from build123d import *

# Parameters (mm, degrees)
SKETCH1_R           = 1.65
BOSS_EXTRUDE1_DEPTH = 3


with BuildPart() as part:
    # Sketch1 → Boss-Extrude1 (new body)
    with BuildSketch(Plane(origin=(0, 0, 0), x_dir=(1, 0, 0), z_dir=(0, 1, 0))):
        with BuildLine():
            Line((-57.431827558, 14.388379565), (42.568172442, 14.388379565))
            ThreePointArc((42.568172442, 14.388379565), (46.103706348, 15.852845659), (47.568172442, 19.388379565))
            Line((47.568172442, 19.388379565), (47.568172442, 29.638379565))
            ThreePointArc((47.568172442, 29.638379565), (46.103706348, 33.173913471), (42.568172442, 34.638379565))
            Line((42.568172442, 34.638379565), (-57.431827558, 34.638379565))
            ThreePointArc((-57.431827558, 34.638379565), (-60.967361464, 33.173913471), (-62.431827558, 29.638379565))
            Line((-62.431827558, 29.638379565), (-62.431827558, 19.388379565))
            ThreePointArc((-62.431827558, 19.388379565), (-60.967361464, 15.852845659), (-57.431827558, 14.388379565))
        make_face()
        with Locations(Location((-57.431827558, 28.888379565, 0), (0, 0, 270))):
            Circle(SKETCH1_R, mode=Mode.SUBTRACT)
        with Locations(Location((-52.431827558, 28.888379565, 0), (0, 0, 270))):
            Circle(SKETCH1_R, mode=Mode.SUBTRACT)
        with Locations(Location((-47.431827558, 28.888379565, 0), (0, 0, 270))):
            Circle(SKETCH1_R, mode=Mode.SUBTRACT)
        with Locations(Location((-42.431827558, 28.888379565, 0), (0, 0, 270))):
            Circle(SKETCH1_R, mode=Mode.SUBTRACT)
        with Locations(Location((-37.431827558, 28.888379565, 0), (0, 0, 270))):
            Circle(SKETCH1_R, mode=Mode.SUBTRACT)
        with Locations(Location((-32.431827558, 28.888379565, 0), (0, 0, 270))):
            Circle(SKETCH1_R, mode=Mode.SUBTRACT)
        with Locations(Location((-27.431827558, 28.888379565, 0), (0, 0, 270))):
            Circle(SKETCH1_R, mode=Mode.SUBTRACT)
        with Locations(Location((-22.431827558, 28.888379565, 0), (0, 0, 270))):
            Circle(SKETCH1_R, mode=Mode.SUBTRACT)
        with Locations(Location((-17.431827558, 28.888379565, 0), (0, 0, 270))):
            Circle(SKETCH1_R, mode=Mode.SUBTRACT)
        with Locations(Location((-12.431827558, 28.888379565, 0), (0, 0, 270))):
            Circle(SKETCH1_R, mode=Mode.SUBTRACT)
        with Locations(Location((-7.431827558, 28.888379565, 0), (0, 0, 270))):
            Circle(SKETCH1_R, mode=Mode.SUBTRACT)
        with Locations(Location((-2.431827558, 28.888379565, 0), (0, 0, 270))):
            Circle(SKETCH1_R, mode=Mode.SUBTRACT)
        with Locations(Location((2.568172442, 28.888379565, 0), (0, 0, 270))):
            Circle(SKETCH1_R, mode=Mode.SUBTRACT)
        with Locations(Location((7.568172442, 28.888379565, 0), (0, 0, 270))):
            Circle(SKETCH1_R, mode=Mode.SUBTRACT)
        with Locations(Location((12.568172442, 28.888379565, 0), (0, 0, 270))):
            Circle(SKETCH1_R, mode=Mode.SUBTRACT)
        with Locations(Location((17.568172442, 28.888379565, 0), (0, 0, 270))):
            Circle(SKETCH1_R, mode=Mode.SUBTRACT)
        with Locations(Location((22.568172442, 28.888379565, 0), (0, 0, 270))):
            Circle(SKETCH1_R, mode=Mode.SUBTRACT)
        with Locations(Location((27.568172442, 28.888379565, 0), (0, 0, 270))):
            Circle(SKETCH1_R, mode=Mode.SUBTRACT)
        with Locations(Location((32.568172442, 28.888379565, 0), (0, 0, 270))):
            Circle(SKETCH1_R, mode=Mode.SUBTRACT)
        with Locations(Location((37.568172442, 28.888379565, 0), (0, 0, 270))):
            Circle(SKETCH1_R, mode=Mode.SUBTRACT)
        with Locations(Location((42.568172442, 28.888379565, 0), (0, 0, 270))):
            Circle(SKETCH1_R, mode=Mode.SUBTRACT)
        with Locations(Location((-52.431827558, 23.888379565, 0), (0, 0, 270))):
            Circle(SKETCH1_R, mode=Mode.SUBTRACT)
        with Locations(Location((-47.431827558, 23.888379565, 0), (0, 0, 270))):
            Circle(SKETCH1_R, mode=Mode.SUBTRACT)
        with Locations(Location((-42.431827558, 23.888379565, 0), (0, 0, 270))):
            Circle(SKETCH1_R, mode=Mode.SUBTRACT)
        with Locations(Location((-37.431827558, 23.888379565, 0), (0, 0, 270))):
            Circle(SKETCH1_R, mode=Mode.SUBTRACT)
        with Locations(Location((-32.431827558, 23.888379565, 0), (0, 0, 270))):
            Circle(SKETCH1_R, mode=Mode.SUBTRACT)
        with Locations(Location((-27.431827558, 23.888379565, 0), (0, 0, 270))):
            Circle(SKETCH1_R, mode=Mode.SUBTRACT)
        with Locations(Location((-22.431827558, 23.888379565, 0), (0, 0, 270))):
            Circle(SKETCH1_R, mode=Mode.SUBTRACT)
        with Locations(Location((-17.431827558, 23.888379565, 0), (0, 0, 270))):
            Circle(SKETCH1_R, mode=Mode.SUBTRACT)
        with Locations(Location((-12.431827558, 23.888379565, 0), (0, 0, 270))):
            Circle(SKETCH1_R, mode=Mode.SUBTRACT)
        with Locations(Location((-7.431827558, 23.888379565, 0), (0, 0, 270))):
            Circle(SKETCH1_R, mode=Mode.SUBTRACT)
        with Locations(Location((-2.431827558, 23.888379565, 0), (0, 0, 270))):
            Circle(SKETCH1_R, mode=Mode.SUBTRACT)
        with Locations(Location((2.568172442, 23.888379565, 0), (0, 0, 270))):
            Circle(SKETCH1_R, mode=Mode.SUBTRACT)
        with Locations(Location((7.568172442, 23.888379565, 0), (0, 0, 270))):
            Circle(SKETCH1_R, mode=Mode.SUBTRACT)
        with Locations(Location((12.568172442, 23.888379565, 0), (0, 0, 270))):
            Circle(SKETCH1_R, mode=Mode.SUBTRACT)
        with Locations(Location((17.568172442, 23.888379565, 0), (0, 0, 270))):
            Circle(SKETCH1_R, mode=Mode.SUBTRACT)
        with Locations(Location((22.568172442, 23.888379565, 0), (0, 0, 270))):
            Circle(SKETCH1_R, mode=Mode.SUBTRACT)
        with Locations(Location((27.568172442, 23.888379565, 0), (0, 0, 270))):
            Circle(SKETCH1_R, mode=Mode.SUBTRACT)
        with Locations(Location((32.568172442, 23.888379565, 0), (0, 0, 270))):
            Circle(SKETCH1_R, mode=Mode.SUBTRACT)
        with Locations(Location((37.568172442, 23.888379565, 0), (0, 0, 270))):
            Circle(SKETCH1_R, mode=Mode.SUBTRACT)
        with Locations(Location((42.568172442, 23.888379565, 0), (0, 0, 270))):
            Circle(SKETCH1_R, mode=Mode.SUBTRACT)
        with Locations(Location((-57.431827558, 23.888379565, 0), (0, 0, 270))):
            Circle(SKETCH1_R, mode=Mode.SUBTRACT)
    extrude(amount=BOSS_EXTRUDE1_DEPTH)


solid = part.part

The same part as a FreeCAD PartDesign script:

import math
import FreeCAD as App
import Part
import Sketcher

V = App.Vector
Q = App.Units.Quantity

doc = App.newDocument("Part")
body = doc.addObject("PartDesign::Body", "Body")

# Sketch on XZ plane
sketch1 = body.newObject("Sketcher::SketchObject", "Sketch")
sketch1.AttachmentSupport = (doc.getObject("XZ_Plane"), [""])
sketch1.MapMode = "FlatFace"
sketch1.addGeometry([
    Part.LineSegment(V(-57.4, -14.4, 0), V(42.6, -14.4, 0)),  # 0
    Part.ArcOfCircle(Part.Circle(V(42.6, -19.4, 0), V(0, 0, 1), 5), math.radians(0), math.radians(90)),  # 1
    Part.LineSegment(V(47.6, -19.4, 0), V(47.6, -29.6, 0)),  # 2
    Part.ArcOfCircle(Part.Circle(V(42.6, -29.6, 0), V(0, 0, 1), 5), math.radians(-90), math.radians(0)),  # 3
    Part.LineSegment(V(42.6, -34.6, 0), V(-57.4, -34.6, 0)),  # 4
    Part.ArcOfCircle(Part.Circle(V(-57.4, -29.6, 0), V(0, 0, 1), 5), math.radians(180), math.radians(270)),  # 5
    Part.LineSegment(V(-62.4, -29.6, 0), V(-62.4, -19.4, 0)),  # 6
    Part.ArcOfCircle(Part.Circle(V(-57.4, -19.4, 0), V(0, 0, 1), 5), math.radians(90), math.radians(180)),  # 7
    Part.Circle(V(-57.4, -23.9, 0), V(0, 0, 1), 1.6),  # 8
    Part.Circle(V(-52.4, -23.9, 0), V(0, 0, 1), 1.6),  # 9
    Part.Circle(V(-47.4, -23.9, 0), V(0, 0, 1), 1.6),  # 10
    Part.Circle(V(-42.4, -23.9, 0), V(0, 0, 1), 1.6),  # 11
    Part.Circle(V(-37.4, -23.9, 0), V(0, 0, 1), 1.6),  # 12
    Part.Circle(V(-32.4, -23.9, 0), V(0, 0, 1), 1.6),  # 13
    Part.Circle(V(-27.4, -23.9, 0), V(0, 0, 1), 1.6),  # 14
    Part.Circle(V(-22.4, -23.9, 0), V(0, 0, 1), 1.6),  # 15
    Part.Circle(V(-17.4, -23.9, 0), V(0, 0, 1), 1.6),  # 16
    Part.Circle(V(-12.4, -23.9, 0), V(0, 0, 1), 1.6),  # 17
    Part.Circle(V(-7.4, -23.9, 0), V(0, 0, 1), 1.6),  # 18
    Part.Circle(V(-2.4, -23.9, 0), V(0, 0, 1), 1.6),  # 19
    Part.Circle(V(2.6, -23.9, 0), V(0, 0, 1), 1.6),  # 20
    Part.Circle(V(7.6, -23.9, 0), V(0, 0, 1), 1.6),  # 21
    Part.Circle(V(12.6, -23.9, 0), V(0, 0, 1), 1.6),  # 22
    Part.Circle(V(17.6, -23.9, 0), V(0, 0, 1), 1.6),  # 23
    Part.Circle(V(22.6, -23.9, 0), V(0, 0, 1), 1.6),  # 24
    Part.Circle(V(27.6, -23.9, 0), V(0, 0, 1), 1.6),  # 25
    Part.Circle(V(32.6, -23.9, 0), V(0, 0, 1), 1.6),  # 26
    Part.Circle(V(37.6, -23.9, 0), V(0, 0, 1), 1.6),  # 27
    Part.Circle(V(42.6, -23.9, 0), V(0, 0, 1), 1.6),  # 28
    Part.Circle(V(-57.4, -28.9, 0), V(0, 0, 1), 1.6),  # 29
    Part.Circle(V(-52.4, -28.9, 0), V(0, 0, 1), 1.6),  # 30
    Part.Circle(V(-47.4, -28.9, 0), V(0, 0, 1), 1.6),  # 31
    Part.Circle(V(-42.4, -28.9, 0), V(0, 0, 1), 1.6),  # 32
    Part.Circle(V(-37.4, -28.9, 0), V(0, 0, 1), 1.6),  # 33
    Part.Circle(V(-32.4, -28.9, 0), V(0, 0, 1), 1.6),  # 34
    Part.Circle(V(-27.4, -28.9, 0), V(0, 0, 1), 1.6),  # 35
    Part.Circle(V(-22.4, -28.9, 0), V(0, 0, 1), 1.6),  # 36
    Part.Circle(V(-17.4, -28.9, 0), V(0, 0, 1), 1.6),  # 37
    Part.Circle(V(-12.4, -28.9, 0), V(0, 0, 1), 1.6),  # 38
    Part.Circle(V(-7.4, -28.9, 0), V(0, 0, 1), 1.6),  # 39
    Part.Circle(V(-2.4, -28.9, 0), V(0, 0, 1), 1.6),  # 40
    Part.Circle(V(2.6, -28.9, 0), V(0, 0, 1), 1.6),  # 41
    Part.Circle(V(7.6, -28.9, 0), V(0, 0, 1), 1.6),  # 42
    Part.Circle(V(12.6, -28.9, 0), V(0, 0, 1), 1.6),  # 43
    Part.Circle(V(17.6, -28.9, 0), V(0, 0, 1), 1.6),  # 44
    Part.Circle(V(22.6, -28.9, 0), V(0, 0, 1), 1.6),  # 45
    Part.Circle(V(27.6, -28.9, 0), V(0, 0, 1), 1.6),  # 46
    Part.Circle(V(32.6, -28.9, 0), V(0, 0, 1), 1.6),  # 47
    Part.Circle(V(37.6, -28.9, 0), V(0, 0, 1), 1.6),  # 48
    Part.Circle(V(42.6, -28.9, 0), V(0, 0, 1), 1.6),  # 49
], False)
sketch1.addConstraint([
    Sketcher.Constraint("Tangent", 0, 2, 1, 2),
    Sketcher.Constraint("Tangent", 1, 1, 2, 1),
    Sketcher.Constraint("Tangent", 2, 2, 3, 2),
    Sketcher.Constraint("Tangent", 3, 1, 4, 1),
    Sketcher.Constraint("Tangent", 4, 2, 5, 2),
    Sketcher.Constraint("Tangent", 5, 1, 6, 1),
    Sketcher.Constraint("Tangent", 6, 2, 7, 2),
    Sketcher.Constraint("Tangent", 7, 1, 0, 1),
    Sketcher.Constraint("Horizontal", 0),
    Sketcher.Constraint("Vertical", 2),
    Sketcher.Constraint("Horizontal", 4),
    Sketcher.Constraint("Vertical", 6),
    Sketcher.Constraint("Equal", 1, 3),
    Sketcher.Constraint("Equal", 3, 5),
    Sketcher.Constraint("Equal", 5, 7),
    Sketcher.Constraint("Equal", 8, 9),
    Sketcher.Constraint("Equal", 9, 10),
    Sketcher.Constraint("Equal", 10, 11),
    Sketcher.Constraint("Equal", 11, 12),
    Sketcher.Constraint("Equal", 12, 13),
    Sketcher.Constraint("Equal", 13, 14),
    Sketcher.Constraint("Equal", 14, 15),
    Sketcher.Constraint("Equal", 15, 16),
    Sketcher.Constraint("Equal", 16, 17),
    Sketcher.Constraint("Equal", 17, 18),
    Sketcher.Constraint("Equal", 18, 19),
    Sketcher.Constraint("Equal", 19, 20),
    Sketcher.Constraint("Equal", 20, 21),
    Sketcher.Constraint("Equal", 21, 22),
    Sketcher.Constraint("Equal", 22, 23),
    Sketcher.Constraint("Equal", 23, 24),
    Sketcher.Constraint("Equal", 24, 25),
    Sketcher.Constraint("Equal", 25, 26),
    Sketcher.Constraint("Equal", 26, 27),
    Sketcher.Constraint("Equal", 27, 28),
    Sketcher.Constraint("Equal", 28, 29),
    Sketcher.Constraint("Equal", 29, 30),
    Sketcher.Constraint("Equal", 30, 31),
    Sketcher.Constraint("Equal", 31, 32),
    Sketcher.Constraint("Equal", 32, 33),
    Sketcher.Constraint("Equal", 33, 34),
    Sketcher.Constraint("Equal", 34, 35),
    Sketcher.Constraint("Equal", 35, 36),
    Sketcher.Constraint("Equal", 36, 37),
    Sketcher.Constraint("Equal", 37, 38),
    Sketcher.Constraint("Equal", 38, 39),
    Sketcher.Constraint("Equal", 39, 40),
    Sketcher.Constraint("Equal", 40, 41),
    Sketcher.Constraint("Equal", 41, 42),
    Sketcher.Constraint("Equal", 42, 43),
    Sketcher.Constraint("Equal", 43, 44),
    Sketcher.Constraint("Equal", 44, 45),
    Sketcher.Constraint("Equal", 45, 46),
    Sketcher.Constraint("Equal", 46, 47),
    Sketcher.Constraint("Equal", 47, 48),
    Sketcher.Constraint("Equal", 48, 49),
    Sketcher.Constraint("Horizontal", 8, 3, 9, 3),
    Sketcher.Constraint("Horizontal", 9, 3, 10, 3),
    Sketcher.Constraint("Horizontal", 10, 3, 11, 3),
    Sketcher.Constraint("Horizontal", 11, 3, 12, 3),
    Sketcher.Constraint("Horizontal", 12, 3, 13, 3),
    Sketcher.Constraint("Horizontal", 13, 3, 14, 3),
    Sketcher.Constraint("Horizontal", 14, 3, 15, 3),
    Sketcher.Constraint("Horizontal", 15, 3, 16, 3),
    Sketcher.Constraint("Horizontal", 16, 3, 17, 3),
    Sketcher.Constraint("Horizontal", 17, 3, 18, 3),
    Sketcher.Constraint("Horizontal", 18, 3, 19, 3),
    Sketcher.Constraint("Horizontal", 19, 3, 20, 3),
    Sketcher.Constraint("Horizontal", 20, 3, 21, 3),
    Sketcher.Constraint("Horizontal", 21, 3, 22, 3),
    Sketcher.Constraint("Horizontal", 22, 3, 23, 3),
    Sketcher.Constraint("Horizontal", 23, 3, 24, 3),
    Sketcher.Constraint("Horizontal", 24, 3, 25, 3),
    Sketcher.Constraint("Horizontal", 25, 3, 26, 3),
    Sketcher.Constraint("Horizontal", 26, 3, 27, 3),
    Sketcher.Constraint("Horizontal", 27, 3, 28, 3),
    Sketcher.Constraint("Horizontal", 29, 3, 30, 3),
    Sketcher.Constraint("Horizontal", 30, 3, 31, 3),
    Sketcher.Constraint("Horizontal", 31, 3, 32, 3),
    Sketcher.Constraint("Horizontal", 32, 3, 33, 3),
    Sketcher.Constraint("Horizontal", 33, 3, 34, 3),
    Sketcher.Constraint("Horizontal", 34, 3, 35, 3),
    Sketcher.Constraint("Horizontal", 35, 3, 36, 3),
    Sketcher.Constraint("Horizontal", 36, 3, 37, 3),
    Sketcher.Constraint("Horizontal", 37, 3, 38, 3),
    Sketcher.Constraint("Horizontal", 38, 3, 39, 3),
    Sketcher.Constraint("Horizontal", 39, 3, 40, 3),
    Sketcher.Constraint("Horizontal", 40, 3, 41, 3),
    Sketcher.Constraint("Horizontal", 41, 3, 42, 3),
    Sketcher.Constraint("Horizontal", 42, 3, 43, 3),
    Sketcher.Constraint("Horizontal", 43, 3, 44, 3),
    Sketcher.Constraint("Horizontal", 44, 3, 45, 3),
    Sketcher.Constraint("Horizontal", 45, 3, 46, 3),
    Sketcher.Constraint("Horizontal", 46, 3, 47, 3),
    Sketcher.Constraint("Horizontal", 47, 3, 48, 3),
    Sketcher.Constraint("Horizontal", 48, 3, 49, 3),
    Sketcher.Constraint("Vertical", 7, 3, 8, 3),
    Sketcher.Constraint("Vertical", 3, 3, 28, 3),
    Sketcher.Constraint("Vertical", 8, 3, 29, 3),
    Sketcher.Constraint("Vertical", 9, 3, 30, 3),
    Sketcher.Constraint("Vertical", 10, 3, 31, 3),
    Sketcher.Constraint("Vertical", 11, 3, 32, 3),
    Sketcher.Constraint("Vertical", 12, 3, 33, 3),
    Sketcher.Constraint("Vertical", 13, 3, 34, 3),
    Sketcher.Constraint("Vertical", 14, 3, 35, 3),
    Sketcher.Constraint("Vertical", 15, 3, 36, 3),
    Sketcher.Constraint("Vertical", 16, 3, 37, 3),
    Sketcher.Constraint("Vertical", 17, 3, 38, 3),
    Sketcher.Constraint("Vertical", 18, 3, 39, 3),
    Sketcher.Constraint("Vertical", 19, 3, 40, 3),
    Sketcher.Constraint("Vertical", 20, 3, 41, 3),
    Sketcher.Constraint("Vertical", 21, 3, 42, 3),
    Sketcher.Constraint("Vertical", 22, 3, 43, 3),
    Sketcher.Constraint("Vertical", 23, 3, 44, 3),
    Sketcher.Constraint("Vertical", 24, 3, 45, 3),
    Sketcher.Constraint("Vertical", 25, 3, 46, 3),
    Sketcher.Constraint("Vertical", 26, 3, 47, 3),
    Sketcher.Constraint("Vertical", 27, 3, 48, 3),
    Sketcher.Constraint("Vertical", 28, 3, 49, 3),
    Sketcher.Constraint("Radius", 1, Q("5 mm")),
    Sketcher.Constraint("Diameter", 8, Q("3.3 mm")),
    Sketcher.Constraint("DistanceX", 0, 1, 0, 2, Q("100 mm")),
    Sketcher.Constraint("DistanceX", 8, 3, 9, 3, Q("5 mm")),
    Sketcher.Constraint("DistanceX", 9, 3, 10, 3, Q("5 mm")),
    Sketcher.Constraint("DistanceX", 10, 3, 11, 3, Q("5 mm")),
    Sketcher.Constraint("DistanceX", 11, 3, 12, 3, Q("5 mm")),
    Sketcher.Constraint("DistanceX", 12, 3, 13, 3, Q("5 mm")),
    Sketcher.Constraint("DistanceX", 13, 3, 14, 3, Q("5 mm")),
    Sketcher.Constraint("DistanceX", 14, 3, 15, 3, Q("5 mm")),
    Sketcher.Constraint("DistanceX", 15, 3, 16, 3, Q("5 mm")),
    Sketcher.Constraint("DistanceX", 16, 3, 17, 3, Q("5 mm")),
    Sketcher.Constraint("DistanceX", 17, 3, 18, 3, Q("5 mm")),
    Sketcher.Constraint("DistanceX", 18, 3, 19, 3, Q("5 mm")),
    Sketcher.Constraint("DistanceX", 19, 3, 20, 3, Q("5 mm")),
    Sketcher.Constraint("DistanceX", 20, 3, 21, 3, Q("5 mm")),
    Sketcher.Constraint("DistanceX", 21, 3, 22, 3, Q("5 mm")),
    Sketcher.Constraint("DistanceX", 22, 3, 23, 3, Q("5 mm")),
    Sketcher.Constraint("DistanceX", 23, 3, 24, 3, Q("5 mm")),
    Sketcher.Constraint("DistanceX", 24, 3, 25, 3, Q("5 mm")),
    Sketcher.Constraint("DistanceX", 25, 3, 26, 3, Q("5 mm")),
    Sketcher.Constraint("DistanceX", 26, 3, 27, 3, Q("5 mm")),
    Sketcher.Constraint("DistanceY", 29, 3, 8, 3, Q("5 mm")),
    Sketcher.Constraint("DistanceY", 2, 2, 2, 1, Q("10.25 mm")),
    Sketcher.Constraint("DistanceY", 8, 3, 7, 3, Q("4.5 mm")),
    Sketcher.Constraint("DistanceY", 1, 3, -1, 1, Q("19.38838 mm")),
    Sketcher.Constraint("DistanceX", -1, 1, 1, 3, Q("42.568172 mm")),
])
pad1 = body.newObject("PartDesign::Pad", "Pad")
pad1.Profile = sketch1
pad1.Length = 3
pad1.Reversed = True

doc.recompute()
